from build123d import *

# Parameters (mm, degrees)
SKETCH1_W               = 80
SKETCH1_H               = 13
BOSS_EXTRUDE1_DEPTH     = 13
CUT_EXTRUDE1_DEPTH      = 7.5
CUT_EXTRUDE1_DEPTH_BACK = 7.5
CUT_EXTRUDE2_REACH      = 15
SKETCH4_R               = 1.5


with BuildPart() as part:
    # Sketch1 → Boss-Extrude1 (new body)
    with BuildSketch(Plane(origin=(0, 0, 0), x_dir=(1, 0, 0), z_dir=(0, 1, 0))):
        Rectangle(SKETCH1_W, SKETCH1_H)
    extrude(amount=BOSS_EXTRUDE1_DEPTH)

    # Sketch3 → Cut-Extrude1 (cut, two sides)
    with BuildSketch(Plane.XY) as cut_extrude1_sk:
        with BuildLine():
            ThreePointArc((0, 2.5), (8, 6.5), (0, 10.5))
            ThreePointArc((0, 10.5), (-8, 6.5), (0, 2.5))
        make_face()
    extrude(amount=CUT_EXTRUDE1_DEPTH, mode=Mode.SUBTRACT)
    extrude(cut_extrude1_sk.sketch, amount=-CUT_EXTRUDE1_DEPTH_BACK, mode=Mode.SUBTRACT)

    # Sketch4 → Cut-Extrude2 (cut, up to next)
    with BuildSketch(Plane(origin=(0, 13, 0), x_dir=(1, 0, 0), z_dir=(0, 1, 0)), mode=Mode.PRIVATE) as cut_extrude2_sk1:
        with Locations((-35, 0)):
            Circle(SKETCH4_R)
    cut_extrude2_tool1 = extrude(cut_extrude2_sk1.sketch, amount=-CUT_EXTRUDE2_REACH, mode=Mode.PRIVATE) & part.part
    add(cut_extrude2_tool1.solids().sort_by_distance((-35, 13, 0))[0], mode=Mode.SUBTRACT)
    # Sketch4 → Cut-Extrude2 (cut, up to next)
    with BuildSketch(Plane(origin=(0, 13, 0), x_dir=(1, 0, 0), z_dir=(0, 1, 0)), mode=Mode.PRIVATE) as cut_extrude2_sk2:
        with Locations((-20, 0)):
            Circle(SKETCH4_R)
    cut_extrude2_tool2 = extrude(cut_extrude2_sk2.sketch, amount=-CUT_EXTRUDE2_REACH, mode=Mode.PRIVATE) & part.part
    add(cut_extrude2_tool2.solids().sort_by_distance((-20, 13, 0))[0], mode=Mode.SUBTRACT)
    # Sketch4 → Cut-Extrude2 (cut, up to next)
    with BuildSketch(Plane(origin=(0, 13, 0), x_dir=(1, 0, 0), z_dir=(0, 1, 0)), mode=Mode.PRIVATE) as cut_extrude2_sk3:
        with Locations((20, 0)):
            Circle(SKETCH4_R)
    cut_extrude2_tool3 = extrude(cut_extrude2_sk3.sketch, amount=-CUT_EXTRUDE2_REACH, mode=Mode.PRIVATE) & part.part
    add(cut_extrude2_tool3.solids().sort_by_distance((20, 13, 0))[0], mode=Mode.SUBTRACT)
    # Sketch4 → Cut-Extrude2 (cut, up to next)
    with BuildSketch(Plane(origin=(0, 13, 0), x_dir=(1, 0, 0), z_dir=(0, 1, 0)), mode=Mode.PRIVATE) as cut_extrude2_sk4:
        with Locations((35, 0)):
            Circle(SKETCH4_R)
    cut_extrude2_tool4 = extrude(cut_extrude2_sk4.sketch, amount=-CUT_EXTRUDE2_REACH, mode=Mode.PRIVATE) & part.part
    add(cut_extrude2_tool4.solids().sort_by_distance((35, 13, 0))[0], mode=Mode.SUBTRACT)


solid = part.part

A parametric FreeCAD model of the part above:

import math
import FreeCAD as App
import Part
import Sketcher
Q = App.Units.Quantity


def add_polygon(sketch, points):
    """Adds a closed chain of lines whose ends are joined by coincident constraints."""
    first, n = sketch.GeometryCount, len(points)
    for a, b in zip(points, points[1:] + points[:1]):
        sketch.addGeometry(Part.LineSegment(App.Vector(*a, 0), App.Vector(*b, 0)), False)
    for i in range(n):
        sketch.addConstraint(Sketcher.Constraint("Coincident", first + i, 2, first + (i + 1) % n, 1))

doc = App.newDocument("Part")
params = doc.addObject("Spreadsheet::Sheet", "Params")
for row, (alias, value) in enumerate([
    ("sketch1_width", "80 mm"),
    ("sketch1_height", "13 mm"),
    ("pad1_length", "13 mm"),
    ("sketch2_radius", "5 mm"),
    ("sketch3_diameter", "3 mm"),
    ("sketch4_diameter", "3 mm"),
    ("sketch5_diameter", "3 mm"),
    ("sketch6_diameter", "3 mm"),
], start=1):
    params.set(f"A{row}", alias)
    params.set(f"B{row}", "=" + value)
    params.setAlias(f"B{row}", alias)

body = doc.addObject("PartDesign::Body", "Body")

# Sketch on XZ plane
sketch1 = doc.addObject("Sketcher::SketchObject", "Sketch")
body.addObject(sketch1)
sketch1.AttachmentSupport = (doc.XZ_Plane, [""])
sketch1.MapMode = "FlatFace"
add_polygon(sketch1, [(-40, -6.5), (-40, 6.5), (40, 6.5), (40, -6.5)])  # lines 0-3
sketch1.addConstraint(Sketcher.Constraint("Vertical", 0))
sketch1.addConstraint(Sketcher.Constraint("Horizontal", 1))
sketch1.addConstraint(Sketcher.Constraint("Vertical", 2))
sketch1.addConstraint(Sketcher.Constraint("Horizontal", 3))
sketch1.addConstraint(Sketcher.Constraint("Symmetric", 0, 2, 2, 2, -1, 1))
sketch1.addConstraint(Sketcher.Constraint("DistanceX", 1, 1, 1, 2, Q("80 mm")))
sketch1.addConstraint(Sketcher.Constraint("DistanceY", 0, 1, 0, 2, Q("13 mm")))
sketch1.setExpression("Constraints[9]", "Params.sketch1_width")
sketch1.setExpression("Constraints[10]", "Params.sketch1_height")
pad1 = doc.addObject("PartDesign::Pad", "Pad")
body.addObject(pad1)
pad1.Profile = sketch1
pad1.setExpression("Length", "Params.pad1_length")
pad1.Reversed = True

# Sketch on XY plane
sketch2 = doc.addObject("Sketcher::SketchObject", "Sketch001")
body.addObject(sketch2)
sketch2.AttachmentSupport = (doc.XY_Plane, [""])
sketch2.MapMode = "FlatFace"
sketch2.addGeometry(Part.ArcOfCircle(Part.Circle(App.Vector(3, 6.5, 0), App.Vector(0, 0, 1), 5), math.radians(-126.869898), math.radians(126.869898)), False)
sketch2.addGeometry(Part.ArcOfCircle(Part.Circle(App.Vector(-3, 6.5, 0), App.Vector(0, 0, 1), 5), math.radians(53.130102), math.radians(306.869898)), False)
sketch2.addConstraint(Sketcher.Constraint("Coincident", 0, 1, 1, 2))
sketch2.addConstraint(Sketcher.Constraint("Coincident", 1, 1, 0, 2))
sketch2.addConstraint(Sketcher.Constraint("Equal", 0, 1))
sketch2.addConstraint(Sketcher.Constraint("Symmetric", 0, 3, 1, 3, -2))
sketch2.addConstraint(Sketcher.Constraint("Radius", 0, Q("5 mm")))
sketch2.addConstraint(Sketcher.Constraint("DistanceX", -1, 1, 0, 3, Q("3 mm")))
sketch2.addConstraint(Sketcher.Constraint("DistanceY", -1, 1, 0, 3, Q("6.5 mm")))
sketch2.setExpression("Constraints[4]", "Params.sketch2_radius")
pocket1 = doc.addObject("PartDesign::Pocket", "Pocket")
body.addObject(pocket1)
pocket1.Profile = sketch2
pocket1.Type = "ThroughAll"
pocket1.Midplane = True

# Sketch on XZ plane
sketch3 = doc.addObject("Sketcher::SketchObject", "Sketch002")
body.addObject(sketch3)
sketch3.AttachmentSupport = (doc.XZ_Plane, [""])
sketch3.MapMode = "FlatFace"
sketch3.AttachmentOffset = App.Placement(App.Vector(0, 0, -13), App.Rotation())
sketch3.addGeometry(Part.Circle(App.Vector(-35, 0, 0), App.Vector(0, 0, 1), 1.5), False)
sketch3.addConstraint(Sketcher.Constraint("PointOnObject", 0, 3, -1))
sketch3.addConstraint(Sketcher.Constraint("Diameter", 0, Q("3 mm")))
sketch3.addConstraint(Sketcher.Constraint("DistanceX", 0, 3, -1, 1, Q("35 mm")))
sketch3.setExpression("Constraints[1]", "Params.sketch3_diameter")
pocket2 = doc.addObject("PartDesign::Pocket", "Pocket001")
body.addObject(pocket2)
pocket2.Profile = sketch3
pocket2.Type = "UpToFirst"
pocket2.Reversed = True

# Sketch on XZ plane
sketch4 = doc.addObject("Sketcher::SketchObject", "Sketch003")
body.addObject(sketch4)
sketch4.AttachmentSupport = (doc.XZ_Plane, [""])
sketch4.MapMode = "FlatFace"
sketch4.AttachmentOffset = App.Placement(App.Vector(0, 0, -13), App.Rotation())
sketch4.addGeometry(Part.Circle(App.Vector(-20, 0, 0), App.Vector(0, 0, 1), 1.5), False)
sketch4.addConstraint(Sketcher.Constraint("PointOnObject", 0, 3, -1))
sketch4.addConstraint(Sketcher.Constraint("Diameter", 0, Q("3 mm")))
sketch4.addConstraint(Sketcher.Constraint("DistanceX", 0, 3, -1, 1, Q("20 mm")))
sketch4.setExpression("Constraints[1]", "Params.sketch4_diameter")
pocket3 = doc.addObject("PartDesign::Pocket", "Pocket002")
body.addObject(pocket3)
pocket3.Profile = sketch4
pocket3.Type = "UpToFirst"
pocket3.Reversed = True

# Sketch on XZ plane
sketch5 = doc.addObject("Sketcher::SketchObject", "Sketch004")
body.addObject(sketch5)
sketch5.AttachmentSupport = (doc.XZ_Plane, [""])
sketch5.MapMode = "FlatFace"
sketch5.AttachmentOffset = App.Placement(App.Vector(0, 0, -13), App.Rotation())
sketch5.addGeometry(Part.Circle(App.Vector(20, 0, 0), App.Vector(0, 0, 1), 1.5), False)
sketch5.addConstraint(Sketcher.Constraint("PointOnObject", 0, 3, -1))
sketch5.addConstraint(Sketcher.Constraint("Diameter", 0, Q("3 mm")))
sketch5.addConstraint(Sketcher.Constraint("DistanceX", -1, 1, 0, 3, Q("20 mm")))
sketch5.setExpression("Constraints[1]", "Params.sketch5_diameter")
pocket4 = doc.addObject("PartDesign::Pocket", "Pocket003")
body.addObject(pocket4)
pocket4.Profile = sketch5
pocket4.Type = "UpToFirst"
pocket4.Reversed = True

# Sketch on XZ plane
sketch6 = doc.addObject("Sketcher::SketchObject", "Sketch005")
body.addObject(sketch6)
sketch6.AttachmentSupport = (doc.XZ_Plane, [""])
sketch6.MapMode = "FlatFace"
sketch6.AttachmentOffset = App.Placement(App.Vector(0, 0, -13), App.Rotation())
sketch6.addGeometry(Part.Circle(App.Vector(35, 0, 0), App.Vector(0, 0, 1), 1.5), False)
sketch6.addConstraint(Sketcher.Constraint("PointOnObject", 0, 3, -1))
sketch6.addConstraint(Sketcher.Constraint("Diameter", 0, Q("3 mm")))
sketch6.addConstraint(Sketcher.Constraint("DistanceX", -1, 1, 0, 3, Q("35 mm")))
sketch6.setExpression("Constraints[1]", "Params.sketch6_diameter")
pocket5 = doc.addObject("PartDesign::Pocket", "Pocket004")
body.addObject(pocket5)
pocket5.Profile = sketch6
pocket5.Type = "UpToFirst"
pocket5.Reversed = True

doc.recompute()
